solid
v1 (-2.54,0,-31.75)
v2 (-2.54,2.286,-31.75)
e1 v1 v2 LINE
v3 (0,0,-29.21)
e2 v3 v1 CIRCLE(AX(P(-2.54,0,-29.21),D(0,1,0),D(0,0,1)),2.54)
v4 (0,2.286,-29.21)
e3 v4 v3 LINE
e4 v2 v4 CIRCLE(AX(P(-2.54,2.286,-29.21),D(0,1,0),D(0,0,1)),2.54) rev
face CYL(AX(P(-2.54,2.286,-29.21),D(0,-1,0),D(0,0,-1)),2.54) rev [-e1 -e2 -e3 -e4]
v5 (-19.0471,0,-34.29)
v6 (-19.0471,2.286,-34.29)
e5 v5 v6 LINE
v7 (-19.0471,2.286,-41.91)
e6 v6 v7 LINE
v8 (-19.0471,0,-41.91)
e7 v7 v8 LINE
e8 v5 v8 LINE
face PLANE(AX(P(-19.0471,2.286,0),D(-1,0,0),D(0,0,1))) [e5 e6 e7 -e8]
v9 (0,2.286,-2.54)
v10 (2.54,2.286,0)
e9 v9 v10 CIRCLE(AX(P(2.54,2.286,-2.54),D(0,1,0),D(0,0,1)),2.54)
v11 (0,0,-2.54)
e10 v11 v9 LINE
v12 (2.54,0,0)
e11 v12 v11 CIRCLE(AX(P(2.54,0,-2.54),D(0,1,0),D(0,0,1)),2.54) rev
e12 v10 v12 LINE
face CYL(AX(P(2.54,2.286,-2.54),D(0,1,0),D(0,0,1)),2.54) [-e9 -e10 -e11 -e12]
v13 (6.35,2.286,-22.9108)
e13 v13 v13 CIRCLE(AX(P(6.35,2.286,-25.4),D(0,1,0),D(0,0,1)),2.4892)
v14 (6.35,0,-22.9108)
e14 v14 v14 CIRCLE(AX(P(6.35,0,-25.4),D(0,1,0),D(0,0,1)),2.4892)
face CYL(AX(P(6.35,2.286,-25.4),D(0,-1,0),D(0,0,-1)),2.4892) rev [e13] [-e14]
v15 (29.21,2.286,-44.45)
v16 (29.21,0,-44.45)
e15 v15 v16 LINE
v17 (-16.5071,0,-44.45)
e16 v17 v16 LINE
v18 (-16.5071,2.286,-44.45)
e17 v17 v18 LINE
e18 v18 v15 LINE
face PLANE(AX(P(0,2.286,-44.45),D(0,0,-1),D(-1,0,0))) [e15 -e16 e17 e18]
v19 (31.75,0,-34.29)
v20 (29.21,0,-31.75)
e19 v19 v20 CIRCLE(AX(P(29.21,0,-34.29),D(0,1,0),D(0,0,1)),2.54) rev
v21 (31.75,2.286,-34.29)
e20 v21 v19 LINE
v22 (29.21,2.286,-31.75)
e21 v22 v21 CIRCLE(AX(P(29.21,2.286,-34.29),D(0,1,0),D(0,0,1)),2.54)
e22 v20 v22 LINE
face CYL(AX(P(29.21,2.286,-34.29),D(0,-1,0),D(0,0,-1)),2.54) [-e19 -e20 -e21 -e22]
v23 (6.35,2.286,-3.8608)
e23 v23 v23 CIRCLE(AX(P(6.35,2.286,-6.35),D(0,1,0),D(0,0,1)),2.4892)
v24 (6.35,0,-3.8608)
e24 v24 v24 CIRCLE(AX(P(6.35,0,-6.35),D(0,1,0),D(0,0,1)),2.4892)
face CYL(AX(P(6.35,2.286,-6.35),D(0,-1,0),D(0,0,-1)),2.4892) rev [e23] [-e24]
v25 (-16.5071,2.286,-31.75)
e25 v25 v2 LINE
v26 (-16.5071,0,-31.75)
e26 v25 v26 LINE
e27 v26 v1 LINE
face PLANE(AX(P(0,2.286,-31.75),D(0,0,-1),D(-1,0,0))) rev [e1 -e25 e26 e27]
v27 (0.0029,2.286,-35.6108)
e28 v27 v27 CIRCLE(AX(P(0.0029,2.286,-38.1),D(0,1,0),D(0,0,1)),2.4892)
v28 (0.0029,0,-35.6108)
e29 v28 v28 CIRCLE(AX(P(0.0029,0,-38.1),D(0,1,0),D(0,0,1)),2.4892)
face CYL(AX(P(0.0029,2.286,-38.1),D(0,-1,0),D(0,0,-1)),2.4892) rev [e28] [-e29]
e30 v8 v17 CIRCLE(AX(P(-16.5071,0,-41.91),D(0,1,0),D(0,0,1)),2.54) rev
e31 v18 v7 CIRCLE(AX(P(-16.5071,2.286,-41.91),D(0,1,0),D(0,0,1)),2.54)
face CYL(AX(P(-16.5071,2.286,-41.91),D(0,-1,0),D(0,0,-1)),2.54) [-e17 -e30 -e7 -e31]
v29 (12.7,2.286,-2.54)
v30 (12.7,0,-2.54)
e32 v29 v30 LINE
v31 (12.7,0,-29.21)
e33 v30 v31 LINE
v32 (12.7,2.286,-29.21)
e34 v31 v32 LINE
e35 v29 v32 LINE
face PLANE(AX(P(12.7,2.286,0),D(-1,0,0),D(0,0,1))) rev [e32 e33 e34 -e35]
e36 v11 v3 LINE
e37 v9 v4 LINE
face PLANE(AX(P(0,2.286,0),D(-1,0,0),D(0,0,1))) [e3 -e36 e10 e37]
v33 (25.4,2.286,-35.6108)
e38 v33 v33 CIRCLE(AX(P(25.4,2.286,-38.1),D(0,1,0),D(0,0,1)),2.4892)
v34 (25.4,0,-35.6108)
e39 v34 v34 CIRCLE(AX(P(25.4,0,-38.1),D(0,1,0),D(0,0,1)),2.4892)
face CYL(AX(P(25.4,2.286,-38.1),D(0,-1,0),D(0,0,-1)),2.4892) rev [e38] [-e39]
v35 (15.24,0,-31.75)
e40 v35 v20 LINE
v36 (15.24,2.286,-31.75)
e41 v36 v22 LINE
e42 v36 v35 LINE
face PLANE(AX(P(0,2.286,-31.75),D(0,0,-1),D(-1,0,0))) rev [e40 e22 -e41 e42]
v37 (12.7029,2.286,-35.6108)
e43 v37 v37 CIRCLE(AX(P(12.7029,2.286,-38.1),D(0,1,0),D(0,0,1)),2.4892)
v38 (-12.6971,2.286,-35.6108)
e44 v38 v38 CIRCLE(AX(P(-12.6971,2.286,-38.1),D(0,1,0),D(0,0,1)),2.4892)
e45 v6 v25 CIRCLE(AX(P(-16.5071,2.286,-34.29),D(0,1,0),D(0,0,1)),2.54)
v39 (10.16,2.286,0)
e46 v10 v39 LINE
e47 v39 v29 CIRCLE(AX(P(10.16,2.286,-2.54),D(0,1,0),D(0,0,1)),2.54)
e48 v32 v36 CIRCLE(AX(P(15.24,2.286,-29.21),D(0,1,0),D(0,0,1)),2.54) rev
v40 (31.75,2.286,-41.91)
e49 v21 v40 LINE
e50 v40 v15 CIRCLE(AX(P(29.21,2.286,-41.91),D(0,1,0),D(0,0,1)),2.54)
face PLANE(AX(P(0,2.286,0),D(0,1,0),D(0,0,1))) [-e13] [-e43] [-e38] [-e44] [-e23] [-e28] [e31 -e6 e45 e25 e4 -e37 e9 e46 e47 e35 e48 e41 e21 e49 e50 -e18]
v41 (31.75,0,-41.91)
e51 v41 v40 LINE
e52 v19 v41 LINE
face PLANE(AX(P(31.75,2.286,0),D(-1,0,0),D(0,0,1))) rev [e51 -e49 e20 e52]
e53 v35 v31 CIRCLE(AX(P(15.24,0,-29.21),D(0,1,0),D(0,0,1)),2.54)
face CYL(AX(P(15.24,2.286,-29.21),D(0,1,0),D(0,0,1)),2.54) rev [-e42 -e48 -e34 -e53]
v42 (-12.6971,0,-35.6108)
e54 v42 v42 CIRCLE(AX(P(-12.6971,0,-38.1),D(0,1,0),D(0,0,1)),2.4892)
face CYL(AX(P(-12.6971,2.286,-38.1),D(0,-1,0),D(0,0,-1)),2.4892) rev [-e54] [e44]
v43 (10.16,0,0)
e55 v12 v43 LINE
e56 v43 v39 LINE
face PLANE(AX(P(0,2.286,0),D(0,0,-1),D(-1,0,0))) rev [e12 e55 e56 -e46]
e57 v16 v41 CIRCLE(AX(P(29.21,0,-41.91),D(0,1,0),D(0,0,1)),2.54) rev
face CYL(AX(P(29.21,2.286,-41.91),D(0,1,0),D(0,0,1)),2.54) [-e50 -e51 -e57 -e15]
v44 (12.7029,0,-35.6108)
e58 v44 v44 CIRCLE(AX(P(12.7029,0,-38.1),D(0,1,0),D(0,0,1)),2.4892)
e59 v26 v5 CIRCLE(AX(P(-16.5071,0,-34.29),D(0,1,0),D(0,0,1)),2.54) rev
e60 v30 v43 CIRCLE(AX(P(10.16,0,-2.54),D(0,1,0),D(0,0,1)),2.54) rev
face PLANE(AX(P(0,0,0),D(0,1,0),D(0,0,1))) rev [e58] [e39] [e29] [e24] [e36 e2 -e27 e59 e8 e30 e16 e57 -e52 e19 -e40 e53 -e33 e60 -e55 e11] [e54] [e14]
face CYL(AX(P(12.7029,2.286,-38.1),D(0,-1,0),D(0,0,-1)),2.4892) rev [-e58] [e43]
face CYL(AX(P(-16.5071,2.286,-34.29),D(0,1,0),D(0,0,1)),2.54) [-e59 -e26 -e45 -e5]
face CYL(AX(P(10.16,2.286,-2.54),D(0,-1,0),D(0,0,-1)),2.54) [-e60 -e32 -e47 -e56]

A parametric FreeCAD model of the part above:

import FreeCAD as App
import Part
import Sketcher
Q = App.Units.Quantity


def edges_at(feature, points):
    """Names of the edges that pass closest to the given points."""
    edges = feature.Shape.Edges
    near = lambda p: min(range(len(edges)), key=lambda i: edges[i].distToShape(Part.Vertex(*p))[0])
    return sorted({f"Edge{near(p) + 1}" for p in points})

doc = App.newDocument("Part")
body = doc.addObject("PartDesign::Body", "Body")

# Sketch on XZ plane
sketch1 = body.newObject("Sketcher::SketchObject", "Sketch")
sketch1.AttachmentSupport = (doc.getObject("XZ_Plane"), [""])
sketch1.MapMode = "FlatFace"
sketch1.addGeometry(Part.LineSegment(App.Vector(-19, -31.8, 0), App.Vector(0, -31.8, 0)), False)
sketch1.addGeometry(Part.LineSegment(App.Vector(0, -31.8, 0), App.Vector(0, 0, 0)), False)
sketch1.addGeometry(Part.LineSegment(App.Vector(0, 0, 0), App.Vector(12.7, 0, 0)), False)
sketch1.addGeometry(Part.LineSegment(App.Vector(12.7, 0, 0), App.Vector(12.7, -31.8, 0)), False)
sketch1.addGeometry(Part.LineSegment(App.Vector(12.7, -31.8, 0), App.Vector(31.8, -31.8, 0)), False)
sketch1.addGeometry(Part.LineSegment(App.Vector(31.8, -31.8, 0), App.Vector(31.8, -44.5, 0)), False)
sketch1.addGeometry(Part.LineSegment(App.Vector(31.8, -44.5, 0), App.Vector(-19, -44.5, 0)), False)
sketch1.addGeometry(Part.LineSegment(App.Vector(-19, -44.5, 0), App.Vector(-19, -31.8, 0)), False)
sketch1.addGeometry(Part.Circle(App.Vector(-12.7, -38.1, 0), App.Vector(0, 0, 1), 2.5), False)
sketch1.addGeometry(Part.Circle(App.Vector(0, -38.1, 0), App.Vector(0, 0, 1), 2.5), False)
sketch1.addGeometry(Part.Circle(App.Vector(12.7, -38.1, 0), App.Vector(0, 0, 1), 2.5), False)
sketch1.addGeometry(Part.Circle(App.Vector(25.4, -38.1, 0), App.Vector(0, 0, 1), 2.5), False)
sketch1.addGeometry(Part.Circle(App.Vector(6.3, -25.4, 0), App.Vector(0, 0, 1), 2.5), False)
sketch1.addGeometry(Part.Circle(App.Vector(6.3, -6.3, 0), App.Vector(0, 0, 1), 2.5), False)
sketch1.addConstraint(Sketcher.Constraint("Coincident", 0, 2, 1, 1))
sketch1.addConstraint(Sketcher.Constraint("Coincident", 1, 2, 2, 1))
sketch1.addConstraint(Sketcher.Constraint("Coincident", 2, 2, 3, 1))
sketch1.addConstraint(Sketcher.Constraint("Coincident", 3, 2, 4, 1))
sketch1.addConstraint(Sketcher.Constraint("Coincident", 4, 2, 5, 1))
sketch1.addConstraint(Sketcher.Constraint("Coincident", 5, 2, 6, 1))
sketch1.addConstraint(Sketcher.Constraint("Coincident", 6, 2, 7, 1))
sketch1.addConstraint(Sketcher.Constraint("Coincident", 7, 2, 0, 1))
sketch1.addConstraint(Sketcher.Constraint("Horizontal", 0))
sketch1.addConstraint(Sketcher.Constraint("Vertical", 1))
sketch1.addConstraint(Sketcher.Constraint("Horizontal", 2))
sketch1.addConstraint(Sketcher.Constraint("Vertical", 3))
sketch1.addConstraint(Sketcher.Constraint("Horizontal", 4))
sketch1.addConstraint(Sketcher.Constraint("Vertical", 5))
sketch1.addConstraint(Sketcher.Constraint("Horizontal", 6))
sketch1.addConstraint(Sketcher.Constraint("Vertical", 7))
sketch1.addConstraint(Sketcher.Constraint("Coincident", 1, 2, -1, 1))
sketch1.addConstraint(Sketcher.Constraint("Equal", 8, 9))
sketch1.addConstraint(Sketcher.Constraint("Equal", 9, 10))
sketch1.addConstraint(Sketcher.Constraint("Equal", 10, 11))
sketch1.addConstraint(Sketcher.Constraint("Equal", 11, 12))
sketch1.addConstraint(Sketcher.Constraint("Equal", 12, 13))
sketch1.addConstraint(Sketcher.Constraint("Horizontal", 8, 3, 9, 3))
sketch1.addConstraint(Sketcher.Constraint("Horizontal", 9, 3, 10, 3))
sketch1.addConstraint(Sketcher.Constraint("Horizontal", 10, 3, 11, 3))
sketch1.addConstraint(Sketcher.Constraint("Horizontal", 0, 2, 3, 2))
sketch1.addConstraint(Sketcher.Constraint("Vertical", 12, 3, 13, 3))
sketch1.addConstraint(Sketcher.Constraint("Equal", 2, 5))
sketch1.addConstraint(Sketcher.Constraint("Diameter", 8, Q("0.196 in")))
sketch1.addConstraint(Sketcher.Constraint("DistanceX", 2, 1, 2, 2, Q("0.5 in")))
sketch1.addConstraint(Sketcher.Constraint("DistanceX", -1, 1, 11, 3, Q("1 in")))
sketch1.addConstraint(Sketcher.Constraint("DistanceY", 12, 3, -1, 1, Q("1 in")))
sketch1.addConstraint(Sketcher.Constraint("DistanceX", 8, 3, 10, 3, Q("1 in")))
sketch1.addConstraint(Sketcher.Constraint("DistanceX", 12, 3, 4, 2, Q("1 in")))
sketch1.addConstraint(Sketcher.Constraint("DistanceX", 4, 1, 4, 2, Q("0.75 in")))
sketch1.addConstraint(Sketcher.Constraint("DistanceY", 1, 1, 1, 2, Q("1.25 in")))
sketch1.addConstraint(Sketcher.Constraint("DistanceY", 8, 3, -1, 1, Q("1.5 in")))
sketch1.addConstraint(Sketcher.Constraint("DistanceX", 8, 3, 9, 3, Q("0.5 in")))
sketch1.addConstraint(Sketcher.Constraint("DistanceY", 13, 3, -1, 1, Q("0.25 in")))
sketch1.addConstraint(Sketcher.Constraint("DistanceX", 6, 2, 8, 3, Q("0.25 in")))
sketch1.addConstraint(Sketcher.Constraint("DistanceX", 0, 1, 0, 2, 19.0471))
pad1 = body.newObject("PartDesign::Pad", "Pad")
pad1.Profile = sketch1
pad1.Length = Q("0.09 in")
pad1.Reversed = True
doc.recompute()

fillet = body.newObject("PartDesign::Fillet", "Fillet")
fillet.Base = (pad1, edges_at(pad1, [
    (-19.047, 1.143, -31.75),
    (-19.047, 1.143, -44.45),
    (31.75, 1.143, -44.45),
    (31.75, 1.143, -31.75),
    (12.7, 1.143, -31.75),
    (12.7, 1.143, 0),
    (0, 1.143, 0),
    (0, 1.143, -31.75),
]))
fillet.Radius = Q("0.1 in")

doc.recompute()
